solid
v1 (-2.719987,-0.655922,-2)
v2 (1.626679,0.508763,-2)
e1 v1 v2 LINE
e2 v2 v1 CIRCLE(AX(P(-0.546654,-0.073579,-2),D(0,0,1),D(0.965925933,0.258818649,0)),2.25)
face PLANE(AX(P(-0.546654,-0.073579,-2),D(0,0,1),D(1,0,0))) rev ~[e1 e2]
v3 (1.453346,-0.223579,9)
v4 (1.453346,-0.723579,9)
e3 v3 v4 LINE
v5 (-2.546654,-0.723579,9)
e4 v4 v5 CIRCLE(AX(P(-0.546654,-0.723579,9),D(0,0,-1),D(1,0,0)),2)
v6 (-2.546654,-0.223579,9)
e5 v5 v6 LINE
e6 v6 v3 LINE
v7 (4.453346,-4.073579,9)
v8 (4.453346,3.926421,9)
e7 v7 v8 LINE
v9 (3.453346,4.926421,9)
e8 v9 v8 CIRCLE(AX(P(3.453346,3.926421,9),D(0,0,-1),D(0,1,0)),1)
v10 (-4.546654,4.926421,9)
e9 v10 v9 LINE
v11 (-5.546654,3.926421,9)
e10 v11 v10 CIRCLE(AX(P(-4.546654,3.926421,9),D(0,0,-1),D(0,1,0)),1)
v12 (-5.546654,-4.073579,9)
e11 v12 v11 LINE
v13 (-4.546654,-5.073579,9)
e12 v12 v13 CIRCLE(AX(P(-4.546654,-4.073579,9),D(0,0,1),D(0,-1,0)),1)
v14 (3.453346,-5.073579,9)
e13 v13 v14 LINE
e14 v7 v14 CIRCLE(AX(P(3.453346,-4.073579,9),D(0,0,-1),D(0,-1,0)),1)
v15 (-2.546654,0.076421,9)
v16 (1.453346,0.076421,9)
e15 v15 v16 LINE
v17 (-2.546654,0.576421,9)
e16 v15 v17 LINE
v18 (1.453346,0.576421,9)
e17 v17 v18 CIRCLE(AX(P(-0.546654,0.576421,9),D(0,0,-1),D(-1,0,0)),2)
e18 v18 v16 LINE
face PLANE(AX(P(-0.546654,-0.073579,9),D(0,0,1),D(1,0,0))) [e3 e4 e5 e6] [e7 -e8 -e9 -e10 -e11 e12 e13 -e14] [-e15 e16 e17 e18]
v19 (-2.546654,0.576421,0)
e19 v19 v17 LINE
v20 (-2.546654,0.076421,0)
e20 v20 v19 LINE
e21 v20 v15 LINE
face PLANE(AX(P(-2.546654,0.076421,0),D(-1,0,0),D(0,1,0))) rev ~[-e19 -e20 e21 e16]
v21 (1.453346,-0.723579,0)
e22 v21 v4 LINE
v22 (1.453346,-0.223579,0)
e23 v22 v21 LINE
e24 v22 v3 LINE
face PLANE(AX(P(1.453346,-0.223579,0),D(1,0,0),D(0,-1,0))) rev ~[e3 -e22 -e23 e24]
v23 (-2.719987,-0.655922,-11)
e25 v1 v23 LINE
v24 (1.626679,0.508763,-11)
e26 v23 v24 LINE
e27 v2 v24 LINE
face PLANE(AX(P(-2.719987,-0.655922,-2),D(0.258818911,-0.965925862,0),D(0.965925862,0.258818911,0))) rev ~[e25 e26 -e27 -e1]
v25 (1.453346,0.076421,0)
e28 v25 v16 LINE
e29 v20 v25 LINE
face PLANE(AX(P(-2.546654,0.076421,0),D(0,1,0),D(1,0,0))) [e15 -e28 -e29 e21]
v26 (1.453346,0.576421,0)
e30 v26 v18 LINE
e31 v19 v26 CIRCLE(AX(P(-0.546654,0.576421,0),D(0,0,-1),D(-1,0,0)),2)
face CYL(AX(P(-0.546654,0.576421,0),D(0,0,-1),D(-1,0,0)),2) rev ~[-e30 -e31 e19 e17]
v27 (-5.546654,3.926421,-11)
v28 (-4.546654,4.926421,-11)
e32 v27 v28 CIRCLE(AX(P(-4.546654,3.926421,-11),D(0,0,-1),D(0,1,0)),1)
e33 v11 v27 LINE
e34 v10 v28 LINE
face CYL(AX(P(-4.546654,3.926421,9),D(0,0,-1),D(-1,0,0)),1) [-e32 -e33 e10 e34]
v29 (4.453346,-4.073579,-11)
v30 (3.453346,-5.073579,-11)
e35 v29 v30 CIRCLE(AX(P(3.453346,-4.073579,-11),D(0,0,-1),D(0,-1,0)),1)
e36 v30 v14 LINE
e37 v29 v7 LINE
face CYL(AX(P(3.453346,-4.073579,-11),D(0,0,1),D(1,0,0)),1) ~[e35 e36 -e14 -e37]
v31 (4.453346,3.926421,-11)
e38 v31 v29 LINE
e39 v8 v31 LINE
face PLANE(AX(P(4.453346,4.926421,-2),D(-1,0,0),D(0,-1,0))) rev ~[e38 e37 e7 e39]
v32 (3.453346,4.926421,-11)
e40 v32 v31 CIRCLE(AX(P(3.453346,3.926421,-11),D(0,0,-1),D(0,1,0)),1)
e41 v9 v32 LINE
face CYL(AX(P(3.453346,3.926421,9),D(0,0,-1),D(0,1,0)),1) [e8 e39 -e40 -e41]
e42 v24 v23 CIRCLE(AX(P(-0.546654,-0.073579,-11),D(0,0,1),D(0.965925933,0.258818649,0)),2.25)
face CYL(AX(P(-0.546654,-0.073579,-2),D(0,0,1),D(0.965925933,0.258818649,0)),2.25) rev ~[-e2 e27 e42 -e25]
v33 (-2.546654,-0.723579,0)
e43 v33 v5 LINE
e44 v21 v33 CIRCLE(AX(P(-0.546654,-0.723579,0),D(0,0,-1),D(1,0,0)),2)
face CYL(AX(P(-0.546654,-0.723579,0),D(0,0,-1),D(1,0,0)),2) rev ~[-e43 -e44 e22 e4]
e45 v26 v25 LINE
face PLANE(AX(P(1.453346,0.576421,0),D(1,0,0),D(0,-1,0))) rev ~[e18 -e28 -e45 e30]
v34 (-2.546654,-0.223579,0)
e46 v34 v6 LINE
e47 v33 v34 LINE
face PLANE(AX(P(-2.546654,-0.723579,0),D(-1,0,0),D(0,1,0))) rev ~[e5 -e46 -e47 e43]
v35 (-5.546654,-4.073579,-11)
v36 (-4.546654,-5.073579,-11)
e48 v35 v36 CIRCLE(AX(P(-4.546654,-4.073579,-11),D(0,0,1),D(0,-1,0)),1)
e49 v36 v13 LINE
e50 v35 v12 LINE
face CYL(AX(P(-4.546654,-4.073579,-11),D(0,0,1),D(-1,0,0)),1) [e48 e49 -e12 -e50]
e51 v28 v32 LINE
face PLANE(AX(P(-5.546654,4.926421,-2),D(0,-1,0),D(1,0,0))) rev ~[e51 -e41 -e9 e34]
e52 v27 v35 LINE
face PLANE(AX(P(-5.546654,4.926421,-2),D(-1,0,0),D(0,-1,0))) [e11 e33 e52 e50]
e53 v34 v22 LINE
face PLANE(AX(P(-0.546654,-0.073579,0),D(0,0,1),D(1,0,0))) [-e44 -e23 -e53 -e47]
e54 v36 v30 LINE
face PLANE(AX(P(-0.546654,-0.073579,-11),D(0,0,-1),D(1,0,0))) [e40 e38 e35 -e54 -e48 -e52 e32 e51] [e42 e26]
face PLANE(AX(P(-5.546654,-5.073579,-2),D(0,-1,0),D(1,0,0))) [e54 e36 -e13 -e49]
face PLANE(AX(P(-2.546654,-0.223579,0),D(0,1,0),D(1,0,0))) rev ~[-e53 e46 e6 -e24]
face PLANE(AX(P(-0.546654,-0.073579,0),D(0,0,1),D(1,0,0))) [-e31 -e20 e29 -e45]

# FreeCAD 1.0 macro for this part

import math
import FreeCAD as App
import Part
import Sketcher

V = App.Vector
Q = App.Units.Quantity


def edges_at(feature, points):
    """Names of the edges that pass closest to the given points."""
    edges = feature.Shape.Edges
    near = lambda p: min(range(len(edges)), key=lambda i: edges[i].distToShape(Part.Vertex(*p))[0])
    return sorted({f"Edge{near(p) + 1}" for p in points})

doc = App.newDocument("Part")
params = doc.addObject("Spreadsheet::Sheet", "Params")
for row, (alias, value) in enumerate([
    ("sketch1_radius", "2 mm"),
    ("sketch1_width", "10 mm"),
    ("sketch1_height", "0.5 mm"),
    ("pad1_length", "9 mm"),
    ("sketch2_width", "10 mm"),
    ("pad2_length", "2 mm"),
    ("sketch3_width", "10 mm"),
    ("sketch3_radius", "2.25 mm"),
    ("pad3_length", "9 mm"),
    ("fillet_radius", "1 mm"),
], start=1):
    params.set(f"A{row}", alias)
    params.set(f"B{row}", "=" + value)
    params.setAlias(f"B{row}", alias)

body = doc.addObject("PartDesign::Body", "Body")

# Sketch on XY plane
sketch1 = body.newObject("Sketcher::SketchObject", "Sketch")
sketch1.AttachmentSupport = (doc.getObject("XY_Plane"), [""])
sketch1.MapMode = "FlatFace"
sketch1.addGeometry(Part.LineSegment(V(-5.546654, 4.926421, 0), V(-5.546654, -5.073579, 0)), False)
sketch1.addGeometry(Part.LineSegment(V(-5.546654, -5.073579, 0), V(4.453346, -5.073579, 0)), False)
sketch1.addGeometry(Part.LineSegment(V(4.453346, -5.073579, 0), V(4.453346, 4.926421, 0)), False)
sketch1.addGeometry(Part.LineSegment(V(4.453346, 4.926421, 0), V(-5.546654, 4.926421, 0)), False)
sketch1.addGeometry(Part.LineSegment(V(1.453346, 0.576421, 0), V(1.453346, 0.076421, 0)), False)
sketch1.addGeometry(Part.LineSegment(V(1.453346, 0.076421, 0), V(-2.546654, 0.076421, 0)), False)
sketch1.addGeometry(Part.LineSegment(V(-2.546654, 0.076421, 0), V(-2.546654, 0.576421, 0)), False)
sketch1.addGeometry(Part.ArcOfCircle(Part.Circle(V(-0.546654, 0.576421, 0), V(0, 0, 1), 2), math.radians(0), math.radians(180)), False)
sketch1.addGeometry(Part.LineSegment(V(1.453346, -0.223579, 0), V(1.453346, -0.723579, 0)), False)
sketch1.addGeometry(Part.ArcOfCircle(Part.Circle(V(-0.546654, -0.723579, 0), V(0, 0, 1), 2), math.radians(180), math.radians(360)), False)
sketch1.addGeometry(Part.LineSegment(V(-2.546654, -0.723579, 0), V(-2.546654, -0.223579, 0)), False)
sketch1.addGeometry(Part.LineSegment(V(-2.546654, -0.223579, 0), V(1.453346, -0.223579, 0)), False)
sketch1.addConstraint(Sketcher.Constraint("Coincident", 0, 2, 1, 1))
sketch1.addConstraint(Sketcher.Constraint("Coincident", 1, 2, 2, 1))
sketch1.addConstraint(Sketcher.Constraint("Coincident", 2, 2, 3, 1))
sketch1.addConstraint(Sketcher.Constraint("Coincident", 3, 2, 0, 1))
sketch1.addConstraint(Sketcher.Constraint("Coincident", 4, 2, 5, 1))
sketch1.addConstraint(Sketcher.Constraint("Coincident", 5, 2, 6, 1))
sketch1.addConstraint(Sketcher.Constraint("Tangent", 6, 2, 7, 2))
sketch1.addConstraint(Sketcher.Constraint("Tangent", 7, 1, 4, 1))
sketch1.addConstraint(Sketcher.Constraint("Tangent", 8, 2, 9, 2))
sketch1.addConstraint(Sketcher.Constraint("Tangent", 9, 1, 10, 1))
sketch1.addConstraint(Sketcher.Constraint("Coincident", 10, 2, 11, 1))
sketch1.addConstraint(Sketcher.Constraint("Coincident", 11, 2, 8, 1))
sketch1.addConstraint(Sketcher.Constraint("Vertical", 0))
sketch1.addConstraint(Sketcher.Constraint("Horizontal", 1))
sketch1.addConstraint(Sketcher.Constraint("Vertical", 2))
sketch1.addConstraint(Sketcher.Constraint("Horizontal", 3))
sketch1.addConstraint(Sketcher.Constraint("Vertical", 4))
sketch1.addConstraint(Sketcher.Constraint("Horizontal", 5))
sketch1.addConstraint(Sketcher.Constraint("Vertical", 6))
sketch1.addConstraint(Sketcher.Constraint("Vertical", 8))
sketch1.addConstraint(Sketcher.Constraint("Vertical", 10))
sketch1.addConstraint(Sketcher.Constraint("Horizontal", 11))
sketch1.addConstraint(Sketcher.Constraint("Equal", 7, 9))
sketch1.addConstraint(Sketcher.Constraint("Vertical", 7, 3, 9, 3))
sketch1.addConstraint(Sketcher.Constraint("Equal", 3, 0))
sketch1.addConstraint(Sketcher.Constraint("Equal", 6, 8))
sketch1.addConstraint(Sketcher.Constraint("Radius", 7, Q("2 mm")))
sketch1.addConstraint(Sketcher.Constraint("DistanceX", 1, 1, 1, 2, Q("10 mm")))
sketch1.addConstraint(Sketcher.Constraint("DistanceY", 4, 2, 4, 1, Q("0.5 mm")))
sketch1.addConstraint(Sketcher.Constraint("DistanceX", 0, 2, 9, 3, Q("5 mm")))
sketch1.addConstraint(Sketcher.Constraint("DistanceY", 9, 3, 7, 3, Q("1.3 mm")))
sketch1.addConstraint(Sketcher.Constraint("DistanceY", 0, 2, 9, 3, Q("4.35 mm")))
sketch1.addConstraint(Sketcher.Constraint("DistanceY", -1, 1, 7, 3, Q("0.576421 mm")))
sketch1.addConstraint(Sketcher.Constraint("DistanceX", 7, 3, -1, 1, Q("0.546654 mm")))
sketch1.setExpression("Constraints[26]", "Params.sketch1_radius")
sketch1.setExpression("Constraints[27]", "Params.sketch1_width")
sketch1.setExpression("Constraints[28]", "Params.sketch1_height")
pad1 = body.newObject("PartDesign::Pad", "Pad")
pad1.Profile = sketch1
pad1.setExpression("Length", "Params.pad1_length")

# Sketch on XY plane
sketch2 = body.newObject("Sketcher::SketchObject", "Sketch001")
sketch2.AttachmentSupport = (doc.getObject("XY_Plane"), [""])
sketch2.MapMode = "FlatFace"
sketch2.addGeometry(Part.LineSegment(V(-5.546654, 4.926421, 0), V(-5.546654, -5.073579, 0)), False)
sketch2.addGeometry(Part.LineSegment(V(-5.546654, -5.073579, 0), V(4.453346, -5.073579, 0)), False)
sketch2.addGeometry(Part.LineSegment(V(4.453346, -5.073579, 0), V(4.453346, 4.926421, 0)), False)
sketch2.addGeometry(Part.LineSegment(V(4.453346, 4.926421, 0), V(-5.546654, 4.926421, 0)), False)
sketch2.addConstraint(Sketcher.Constraint("Coincident", 0, 2, 1, 1))
sketch2.addConstraint(Sketcher.Constraint("Coincident", 1, 2, 2, 1))
sketch2.addConstraint(Sketcher.Constraint("Coincident", 2, 2, 3, 1))
sketch2.addConstraint(Sketcher.Constraint("Coincident", 3, 2, 0, 1))
sketch2.addConstraint(Sketcher.Constraint("Vertical", 0))
sketch2.addConstraint(Sketcher.Constraint("Horizontal", 1))
sketch2.addConstraint(Sketcher.Constraint("Vertical", 2))
sketch2.addConstraint(Sketcher.Constraint("Horizontal", 3))
sketch2.addConstraint(Sketcher.Constraint("Equal", 3, 0))
sketch2.addConstraint(Sketcher.Constraint("DistanceX", 1, 1, 1, 2, Q("10 mm")))
sketch2.addConstraint(Sketcher.Constraint("DistanceY", 0, 2, -1, 1, Q("5.073579 mm")))
sketch2.addConstraint(Sketcher.Constraint("DistanceX", 0, 2, -1, 1, Q("5.546654 mm")))
sketch2.setExpression("Constraints[9]", "Params.sketch2_width")
pad2 = body.newObject("PartDesign::Pad", "Pad001")
pad2.Profile = sketch2
pad2.setExpression("Length", "Params.pad2_length")
pad2.Reversed = True
body2 = doc.addObject("PartDesign::Body", "Body001")

# Sketch on XY plane
sketch3 = body2.newObject("Sketcher::SketchObject", "Sketch002")
sketch3.AttachmentSupport = (doc.getObject("XY_Plane001"), [""])
sketch3.MapMode = "FlatFace"
sketch3.AttachmentOffset = App.Placement(V(0, 0, -2), App.Rotation())
sketch3.addGeometry(Part.LineSegment(V(-5.546654, -5.073579, 0), V(-5.546654, 4.926421, 0)), False)
sketch3.addGeometry(Part.LineSegment(V(-5.546654, 4.926421, 0), V(4.453346, 4.926421, 0)), False)
sketch3.addGeometry(Part.LineSegment(V(4.453346, 4.926421, 0), V(4.453346, -5.073579, 0)), False)
sketch3.addGeometry(Part.LineSegment(V(4.453346, -5.073579, 0), V(-5.546654, -5.073579, 0)), False)
sketch3.addGeometry(Part.ArcOfCircle(Part.Circle(V(-0.546654, -0.073579, 0), V(0, 0, 1), 2.25), math.radians(14.999976), math.radians(195.000008)), False)
sketch3.addGeometry(Part.LineSegment(V(-2.719987, -0.655922, 0), V(1.626679, 0.508763, 0)), False)
sketch3.addConstraint(Sketcher.Constraint("Coincident", 0, 2, 1, 1))
sketch3.addConstraint(Sketcher.Constraint("Coincident", 1, 2, 2, 1))
sketch3.addConstraint(Sketcher.Constraint("Coincident", 2, 2, 3, 1))
sketch3.addConstraint(Sketcher.Constraint("Coincident", 3, 2, 0, 1))
sketch3.addConstraint(Sketcher.Constraint("Coincident", 4, 1, 5, 2))
sketch3.addConstraint(Sketcher.Constraint("Coincident", 5, 1, 4, 2))
sketch3.addConstraint(Sketcher.Constraint("Vertical", 0))
sketch3.addConstraint(Sketcher.Constraint("Horizontal", 1))
sketch3.addConstraint(Sketcher.Constraint("Vertical", 2))
sketch3.addConstraint(Sketcher.Constraint("Horizontal", 3))
sketch3.addConstraint(Sketcher.Constraint("Equal", 3, 0))
sketch3.addConstraint(Sketcher.Constraint("DistanceX", 1, 1, 1, 2, Q("10 mm")))
sketch3.addConstraint(Sketcher.Constraint("Angle", 5, Q("14.999992 deg")))
sketch3.addConstraint(Sketcher.Constraint("Radius", 4, Q("2.25 mm")))
sketch3.addConstraint(Sketcher.Constraint("DistanceX", 0, 2, 4, 3, Q("5 mm")))
sketch3.addConstraint(Sketcher.Constraint("DistanceY", 4, 3, 0, 2, Q("5 mm")))
sketch3.addConstraint(Sketcher.Constraint("DistanceY", 4, 3, -1, 1, Q("0.073579 mm")))
sketch3.addConstraint(Sketcher.Constraint("DistanceX", -1, 1, 4, 1, Q("1.626679 mm")))
sketch3.addConstraint(Sketcher.Constraint("DistanceY", 4, 3, 4, 1, Q("0.582342 mm")))
sketch3.setExpression("Constraints[11]", "Params.sketch3_width")
sketch3.setExpression("Constraints[13]", "Params.sketch3_radius")
pad3 = body2.newObject("PartDesign::Pad", "Pad002")
pad3.Profile = sketch3
pad3.setExpression("Length", "Params.pad3_length")
pad3.Reversed = True
doc.recompute()

boolean = body.newObject("PartDesign::Boolean", "Boolean")
boolean.Type = "Fuse"
boolean.addObjects([body2])
doc.recompute()

fillet = body.newObject("PartDesign::Fillet", "Fillet")
fillet.Base = (boolean, edges_at(boolean, [
    (-5.547, 4.926, -1),
    (4.453, 4.926, -1),
    (4.453, -5.074, -1),
    (-5.547, -5.074, -1),
]))
fillet.setExpression("Radius", "Params.fillet_radius")

doc.recompute()
